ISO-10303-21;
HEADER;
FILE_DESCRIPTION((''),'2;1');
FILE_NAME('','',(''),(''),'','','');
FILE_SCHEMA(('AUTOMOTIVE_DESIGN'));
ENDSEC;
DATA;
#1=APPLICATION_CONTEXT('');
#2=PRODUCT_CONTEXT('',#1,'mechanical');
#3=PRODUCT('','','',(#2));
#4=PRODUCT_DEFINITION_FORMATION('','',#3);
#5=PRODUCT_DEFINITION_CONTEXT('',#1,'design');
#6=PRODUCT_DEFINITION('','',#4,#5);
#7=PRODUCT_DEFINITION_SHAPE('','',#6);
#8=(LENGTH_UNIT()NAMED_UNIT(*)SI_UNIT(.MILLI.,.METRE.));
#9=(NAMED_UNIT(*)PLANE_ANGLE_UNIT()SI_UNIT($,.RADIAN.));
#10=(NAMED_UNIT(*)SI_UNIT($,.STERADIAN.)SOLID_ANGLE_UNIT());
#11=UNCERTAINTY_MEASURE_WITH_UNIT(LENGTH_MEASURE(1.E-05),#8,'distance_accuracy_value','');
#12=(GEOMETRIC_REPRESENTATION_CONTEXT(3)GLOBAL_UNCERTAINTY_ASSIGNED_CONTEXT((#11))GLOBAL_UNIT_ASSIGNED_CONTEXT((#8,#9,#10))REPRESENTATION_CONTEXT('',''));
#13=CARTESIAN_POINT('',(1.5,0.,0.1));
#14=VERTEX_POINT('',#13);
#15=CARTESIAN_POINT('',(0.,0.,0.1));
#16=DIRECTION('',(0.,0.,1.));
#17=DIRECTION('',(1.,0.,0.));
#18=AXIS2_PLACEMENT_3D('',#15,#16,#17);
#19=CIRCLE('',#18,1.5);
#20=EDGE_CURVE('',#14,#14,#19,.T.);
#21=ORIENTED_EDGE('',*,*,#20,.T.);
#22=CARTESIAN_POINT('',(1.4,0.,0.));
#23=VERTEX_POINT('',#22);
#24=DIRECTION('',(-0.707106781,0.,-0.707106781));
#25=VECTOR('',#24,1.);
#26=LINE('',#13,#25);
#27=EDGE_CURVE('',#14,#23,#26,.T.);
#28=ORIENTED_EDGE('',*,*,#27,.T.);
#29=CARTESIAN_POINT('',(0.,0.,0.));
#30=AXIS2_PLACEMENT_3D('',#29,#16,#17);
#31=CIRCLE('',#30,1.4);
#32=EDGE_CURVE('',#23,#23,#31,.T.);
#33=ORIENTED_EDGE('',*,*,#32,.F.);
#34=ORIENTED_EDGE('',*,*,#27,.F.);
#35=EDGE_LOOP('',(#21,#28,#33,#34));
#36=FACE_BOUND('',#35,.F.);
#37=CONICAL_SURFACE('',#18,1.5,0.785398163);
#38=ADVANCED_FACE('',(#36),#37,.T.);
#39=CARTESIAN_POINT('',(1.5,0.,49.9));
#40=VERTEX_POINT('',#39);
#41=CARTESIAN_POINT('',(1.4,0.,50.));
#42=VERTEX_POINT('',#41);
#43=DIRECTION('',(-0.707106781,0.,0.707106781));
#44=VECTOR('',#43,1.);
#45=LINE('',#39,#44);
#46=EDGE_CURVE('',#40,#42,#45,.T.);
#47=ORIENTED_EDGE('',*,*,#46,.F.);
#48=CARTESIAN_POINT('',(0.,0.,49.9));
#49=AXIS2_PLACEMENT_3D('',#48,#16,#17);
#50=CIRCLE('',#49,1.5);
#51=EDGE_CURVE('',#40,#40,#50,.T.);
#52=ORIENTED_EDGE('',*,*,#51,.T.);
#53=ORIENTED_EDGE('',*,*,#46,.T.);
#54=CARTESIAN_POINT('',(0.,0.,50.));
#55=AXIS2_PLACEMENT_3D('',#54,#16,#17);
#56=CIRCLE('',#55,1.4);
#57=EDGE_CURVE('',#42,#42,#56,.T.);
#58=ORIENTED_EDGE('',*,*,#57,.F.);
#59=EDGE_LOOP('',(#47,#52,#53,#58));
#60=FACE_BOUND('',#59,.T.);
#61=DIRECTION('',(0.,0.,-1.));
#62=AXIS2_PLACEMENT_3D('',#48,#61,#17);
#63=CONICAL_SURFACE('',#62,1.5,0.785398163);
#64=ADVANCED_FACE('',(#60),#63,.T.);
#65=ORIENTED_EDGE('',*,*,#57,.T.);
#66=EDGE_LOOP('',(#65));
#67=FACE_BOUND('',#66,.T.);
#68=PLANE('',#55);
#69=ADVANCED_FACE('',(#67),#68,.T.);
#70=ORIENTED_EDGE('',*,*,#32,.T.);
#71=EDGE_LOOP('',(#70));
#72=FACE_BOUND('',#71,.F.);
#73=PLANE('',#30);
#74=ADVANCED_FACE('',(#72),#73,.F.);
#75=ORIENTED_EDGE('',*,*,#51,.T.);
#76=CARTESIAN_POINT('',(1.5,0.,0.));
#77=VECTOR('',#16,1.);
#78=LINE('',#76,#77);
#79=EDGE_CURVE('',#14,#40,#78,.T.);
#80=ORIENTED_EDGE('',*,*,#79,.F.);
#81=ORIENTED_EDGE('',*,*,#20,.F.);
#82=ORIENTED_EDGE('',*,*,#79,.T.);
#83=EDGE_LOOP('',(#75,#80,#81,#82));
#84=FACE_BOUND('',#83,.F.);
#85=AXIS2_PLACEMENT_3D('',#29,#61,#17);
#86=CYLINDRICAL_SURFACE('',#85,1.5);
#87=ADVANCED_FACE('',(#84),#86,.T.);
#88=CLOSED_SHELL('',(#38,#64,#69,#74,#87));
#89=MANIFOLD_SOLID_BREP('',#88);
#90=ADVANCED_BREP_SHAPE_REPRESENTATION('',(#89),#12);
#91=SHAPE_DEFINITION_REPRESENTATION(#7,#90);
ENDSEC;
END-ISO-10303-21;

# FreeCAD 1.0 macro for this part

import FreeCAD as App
import Part
import Sketcher

V = App.Vector


def edges_at(feature, points):
    """Names of the edges that pass closest to the given points."""
    edges = feature.Shape.Edges
    near = lambda p: min(range(len(edges)), key=lambda i: edges[i].distToShape(Part.Vertex(*p))[0])
    return sorted({f"Edge{near(p) + 1}" for p in points})

doc = App.newDocument("Part")
body = doc.addObject("PartDesign::Body", "Body")

sketch1 = body.newObject("Sketcher::SketchObject", "Sketch")
sketch1.AttachmentSupport = (doc.getObject("XY_Plane"), [""])
sketch1.MapMode = "FlatFace"
sketch1.addGeometry(Part.Circle(V(0, 0, 0), V(0, 0, 1), 1.5), False)
sketch1.addConstraint([
    Sketcher.Constraint("Coincident", 0, 3, -1, 1),
    Sketcher.Constraint("Diameter", 0, 3.0),
])
pad1 = body.newObject("PartDesign::Pad", "Pad")
pad1.Profile = sketch1
pad1.Length = 50
doc.recompute()

chamfer = body.newObject("PartDesign::Chamfer", "Chamfer")
chamfer.Base = (pad1, edges_at(pad1, [(-1.5, 0, 50), (-1.5, 0, 0)]))
chamfer.Size = 0.1

doc.recompute()
